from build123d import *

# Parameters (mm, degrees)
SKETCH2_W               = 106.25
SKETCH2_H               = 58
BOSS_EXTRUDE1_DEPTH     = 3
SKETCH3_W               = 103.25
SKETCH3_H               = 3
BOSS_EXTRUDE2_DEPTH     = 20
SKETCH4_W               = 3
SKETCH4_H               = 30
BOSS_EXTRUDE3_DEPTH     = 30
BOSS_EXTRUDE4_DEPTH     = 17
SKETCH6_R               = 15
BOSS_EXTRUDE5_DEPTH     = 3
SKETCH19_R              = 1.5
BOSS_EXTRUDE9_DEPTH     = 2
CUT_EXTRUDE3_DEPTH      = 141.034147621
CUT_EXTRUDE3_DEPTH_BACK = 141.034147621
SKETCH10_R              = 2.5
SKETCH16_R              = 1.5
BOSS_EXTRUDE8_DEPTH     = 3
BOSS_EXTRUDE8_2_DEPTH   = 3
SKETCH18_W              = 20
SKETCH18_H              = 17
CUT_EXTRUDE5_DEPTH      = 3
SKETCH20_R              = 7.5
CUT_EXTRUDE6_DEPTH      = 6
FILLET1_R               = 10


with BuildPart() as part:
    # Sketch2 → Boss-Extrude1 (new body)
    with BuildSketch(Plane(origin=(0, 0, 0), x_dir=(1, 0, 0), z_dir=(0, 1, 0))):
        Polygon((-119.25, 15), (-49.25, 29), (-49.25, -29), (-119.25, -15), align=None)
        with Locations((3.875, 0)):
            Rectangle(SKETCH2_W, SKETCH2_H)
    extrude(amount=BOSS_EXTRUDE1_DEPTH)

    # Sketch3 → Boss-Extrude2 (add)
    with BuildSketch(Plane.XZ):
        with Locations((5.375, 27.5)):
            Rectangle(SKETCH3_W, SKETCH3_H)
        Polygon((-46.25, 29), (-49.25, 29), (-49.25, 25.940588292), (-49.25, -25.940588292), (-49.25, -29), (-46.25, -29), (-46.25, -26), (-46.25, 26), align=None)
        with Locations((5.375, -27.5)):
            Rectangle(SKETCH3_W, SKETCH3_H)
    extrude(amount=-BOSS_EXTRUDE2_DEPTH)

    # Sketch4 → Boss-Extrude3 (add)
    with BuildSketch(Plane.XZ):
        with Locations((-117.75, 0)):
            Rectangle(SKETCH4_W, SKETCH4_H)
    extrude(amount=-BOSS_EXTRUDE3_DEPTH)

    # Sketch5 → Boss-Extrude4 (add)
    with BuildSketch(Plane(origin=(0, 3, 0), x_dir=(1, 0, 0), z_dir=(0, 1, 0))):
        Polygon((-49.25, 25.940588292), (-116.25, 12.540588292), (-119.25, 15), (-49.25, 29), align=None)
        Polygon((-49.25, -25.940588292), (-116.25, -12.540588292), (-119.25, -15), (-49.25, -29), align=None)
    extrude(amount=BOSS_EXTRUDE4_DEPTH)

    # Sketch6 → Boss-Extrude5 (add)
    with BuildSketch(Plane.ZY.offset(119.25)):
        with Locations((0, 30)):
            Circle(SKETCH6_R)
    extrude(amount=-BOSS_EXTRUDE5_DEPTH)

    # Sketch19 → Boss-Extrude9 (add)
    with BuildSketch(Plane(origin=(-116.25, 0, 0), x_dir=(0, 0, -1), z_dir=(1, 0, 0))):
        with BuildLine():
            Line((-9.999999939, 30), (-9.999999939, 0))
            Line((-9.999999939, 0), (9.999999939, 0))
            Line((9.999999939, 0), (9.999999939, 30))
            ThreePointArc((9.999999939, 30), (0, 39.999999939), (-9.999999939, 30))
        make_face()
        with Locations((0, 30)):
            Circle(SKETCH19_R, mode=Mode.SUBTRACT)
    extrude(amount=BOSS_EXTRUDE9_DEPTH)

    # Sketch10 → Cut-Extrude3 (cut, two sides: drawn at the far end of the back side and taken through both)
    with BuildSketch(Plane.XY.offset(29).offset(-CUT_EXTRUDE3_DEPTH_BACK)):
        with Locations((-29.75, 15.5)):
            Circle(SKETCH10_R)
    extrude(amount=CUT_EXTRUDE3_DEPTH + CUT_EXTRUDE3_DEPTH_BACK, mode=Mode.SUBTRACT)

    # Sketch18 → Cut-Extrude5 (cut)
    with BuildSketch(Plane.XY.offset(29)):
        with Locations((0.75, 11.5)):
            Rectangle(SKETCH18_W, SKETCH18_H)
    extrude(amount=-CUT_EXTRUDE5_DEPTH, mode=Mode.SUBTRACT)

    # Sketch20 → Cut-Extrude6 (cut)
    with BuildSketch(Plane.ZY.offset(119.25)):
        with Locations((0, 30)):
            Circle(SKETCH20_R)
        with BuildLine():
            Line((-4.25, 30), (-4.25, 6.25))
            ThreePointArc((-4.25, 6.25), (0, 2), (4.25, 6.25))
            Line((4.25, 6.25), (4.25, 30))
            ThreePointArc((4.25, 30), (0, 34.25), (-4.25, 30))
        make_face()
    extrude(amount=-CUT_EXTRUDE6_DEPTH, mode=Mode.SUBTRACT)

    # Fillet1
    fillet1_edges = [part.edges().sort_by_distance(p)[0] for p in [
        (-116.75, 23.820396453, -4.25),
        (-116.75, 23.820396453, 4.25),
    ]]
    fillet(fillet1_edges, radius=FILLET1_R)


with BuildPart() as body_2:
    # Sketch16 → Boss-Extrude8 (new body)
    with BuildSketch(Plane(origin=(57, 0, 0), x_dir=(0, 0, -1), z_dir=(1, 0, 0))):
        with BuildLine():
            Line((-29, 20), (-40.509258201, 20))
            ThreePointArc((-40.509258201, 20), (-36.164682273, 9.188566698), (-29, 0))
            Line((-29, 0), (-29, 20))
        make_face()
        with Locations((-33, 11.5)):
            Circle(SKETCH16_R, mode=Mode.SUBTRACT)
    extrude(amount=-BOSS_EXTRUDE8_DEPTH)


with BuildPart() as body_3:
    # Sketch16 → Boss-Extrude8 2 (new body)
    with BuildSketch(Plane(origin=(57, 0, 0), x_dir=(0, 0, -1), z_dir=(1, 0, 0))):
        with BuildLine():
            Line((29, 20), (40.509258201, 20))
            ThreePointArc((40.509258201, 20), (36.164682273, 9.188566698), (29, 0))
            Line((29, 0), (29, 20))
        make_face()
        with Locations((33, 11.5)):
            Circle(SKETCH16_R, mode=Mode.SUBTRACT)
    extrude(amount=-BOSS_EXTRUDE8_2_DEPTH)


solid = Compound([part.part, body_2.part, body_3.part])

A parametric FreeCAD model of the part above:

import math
import FreeCAD as App
import Part
import Sketcher

V = App.Vector


def edges_at(feature, points):
    """Names of the edges that pass closest to the given points."""
    edges = feature.Shape.Edges
    near = lambda p: min(range(len(edges)), key=lambda i: edges[i].distToShape(Part.Vertex(*p))[0])
    return sorted({f"Edge{near(p) + 1}" for p in points})

doc = App.newDocument("Part")
body = doc.addObject("PartDesign::Body", "Body")

# Sketch on XZ plane
sketch1 = body.newObject("Sketcher::SketchObject", "Sketch")
sketch1.AttachmentSupport = (doc.getObject("XZ_Plane"), [""])
sketch1.MapMode = "FlatFace"
sketch1.addGeometry([
    Part.LineSegment(V(-49.25, -29, 0), V(-119.25, -15, 0)),  # 0
    Part.LineSegment(V(-119.25, -15, 0), V(-119.25, 15, 0)),  # 1
    Part.LineSegment(V(-119.25, 15, 0), V(-49.25, 29, 0)),  # 2
    Part.LineSegment(V(-49.25, 29, 0), V(57, 29, 0)),  # 3
    Part.LineSegment(V(57, 29, 0), V(57, -29, 0)),  # 4
    Part.LineSegment(V(57, -29, 0), V(-49.25, -29, 0)),  # 5
], False)
sketch1.addConstraint([
    Sketcher.Constraint("Coincident", 0, 2, 1, 1),
    Sketcher.Constraint("Coincident", 1, 2, 2, 1),
    Sketcher.Constraint("Coincident", 2, 2, 3, 1),
    Sketcher.Constraint("Coincident", 3, 2, 4, 1),
    Sketcher.Constraint("Coincident", 4, 2, 5, 1),
    Sketcher.Constraint("Coincident", 5, 2, 0, 1),
    Sketcher.Constraint("Vertical", 1),
    Sketcher.Constraint("Horizontal", 3),
    Sketcher.Constraint("Vertical", 4),
    Sketcher.Constraint("Horizontal", 5),
    Sketcher.Constraint("Symmetric", 2, 2, 5, 2, -1),
    Sketcher.Constraint("Equal", 0, 2),
    Sketcher.Constraint("DistanceY", 1, 1, 1, 2, 30.0),
    Sketcher.Constraint("DistanceY", 4, 2, 4, 1, 58.0),
    Sketcher.Constraint("DistanceX", -1, 1, 3, 2, 57.0),
    Sketcher.Constraint("DistanceX", 1, 2, 2, 2, 70.0),
    Sketcher.Constraint("DistanceX", 3, 1, 3, 2, 106.25),
])
pad1 = body.newObject("PartDesign::Pad", "Pad")
pad1.Profile = sketch1
pad1.Length = 3
pad1.Reversed = True

# Sketch on XZ plane
sketch2 = body.newObject("Sketcher::SketchObject", "Sketch001")
sketch2.AttachmentSupport = (doc.getObject("XZ_Plane"), [""])
sketch2.MapMode = "FlatFace"
sketch2.addGeometry([
    Part.LineSegment(V(-46.25, 26, 0), V(57, 26, 0)),  # 0
    Part.LineSegment(V(57, 26, 0), V(57, 29, 0)),  # 1
    Part.LineSegment(V(57, 29, 0), V(-49.25, 29, 0)),  # 2
    Part.LineSegment(V(-49.25, 29, 0), V(-49.25, -29, 0)),  # 3
    Part.LineSegment(V(-49.25, -29, 0), V(57, -29, 0)),  # 4
    Part.LineSegment(V(57, -29, 0), V(57, -26, 0)),  # 5
    Part.LineSegment(V(57, -26, 0), V(-46.25, -26, 0)),  # 6
    Part.LineSegment(V(-46.25, -26, 0), V(-46.25, 26, 0)),  # 7
], False)
sketch2.addConstraint([
    Sketcher.Constraint("Coincident", 0, 2, 1, 1),
    Sketcher.Constraint("Coincident", 1, 2, 2, 1),
    Sketcher.Constraint("Coincident", 2, 2, 3, 1),
    Sketcher.Constraint("Coincident", 3, 2, 4, 1),
    Sketcher.Constraint("Coincident", 4, 2, 5, 1),
    Sketcher.Constraint("Coincident", 5, 2, 6, 1),
    Sketcher.Constraint("Coincident", 6, 2, 7, 1),
    Sketcher.Constraint("Coincident", 7, 2, 0, 1),
    Sketcher.Constraint("Horizontal", 0),
    Sketcher.Constraint("Vertical", 1),
    Sketcher.Constraint("Horizontal", 2),
    Sketcher.Constraint("Vertical", 3),
    Sketcher.Constraint("Horizontal", 4),
    Sketcher.Constraint("Vertical", 5),
    Sketcher.Constraint("Horizontal", 6),
    Sketcher.Constraint("Vertical", 7),
    Sketcher.Constraint("Symmetric", 1, 2, 4, 2, -1),
    Sketcher.Constraint("Equal", 1, 5),
    Sketcher.Constraint("DistanceY", 1, 1, 1, 2, 3.0),
    Sketcher.Constraint("DistanceY", 3, 2, 3, 1, 58.0),
    Sketcher.Constraint("DistanceX", -1, 1, 0, 2, 57.0),
    Sketcher.Constraint("DistanceX", 3, 2, 6, 2, 3.0),
    Sketcher.Constraint("DistanceX", 0, 1, 0, 2, 103.25),
])
pad2 = body.newObject("PartDesign::Pad", "Pad001")
pad2.Profile = sketch2
pad2.Length = 20
pad2.Reversed = True

# Sketch on XZ plane
sketch3 = body.newObject("Sketcher::SketchObject", "Sketch002")
sketch3.AttachmentSupport = (doc.getObject("XZ_Plane"), [""])
sketch3.MapMode = "FlatFace"
sketch3.addGeometry([
    Part.LineSegment(V(-119.25, 15, 0), V(-119.25, -15, 0)),
    Part.LineSegment(V(-119.25, -15, 0), V(-116.25, -15, 0)),
    Part.LineSegment(V(-116.25, -15, 0), V(-116.25, 15, 0)),
    Part.LineSegment(V(-116.25, 15, 0), V(-119.25, 15, 0)),
], False)
sketch3.addConstraint([
    Sketcher.Constraint("Coincident", 0, 2, 1, 1),
    Sketcher.Constraint("Coincident", 1, 2, 2, 1),
    Sketcher.Constraint("Coincident", 2, 2, 3, 1),
    Sketcher.Constraint("Coincident", 3, 2, 0, 1),
    Sketcher.Constraint("Vertical", 0),
    Sketcher.Constraint("Horizontal", 1),
    Sketcher.Constraint("Vertical", 2),
    Sketcher.Constraint("Horizontal", 3),
    Sketcher.Constraint("DistanceX", 1, 1, 1, 2, 3.0),
    Sketcher.Constraint("DistanceY", 0, 2, 0, 1, 30.0),
    Sketcher.Constraint("DistanceY", 0, 2, -1, 1, 15.0),
    Sketcher.Constraint("DistanceX", 0, 2, -1, 1, 119.25),
])
pad3 = body.newObject("PartDesign::Pad", "Pad002")
pad3.Profile = sketch3
pad3.Length = 30
pad3.Reversed = True

# Sketch on XZ plane
sketch4 = body.newObject("Sketcher::SketchObject", "Sketch003")
sketch4.AttachmentSupport = (doc.getObject("XZ_Plane"), [""])
sketch4.MapMode = "FlatFace"
sketch4.AttachmentOffset = App.Placement(V(0, 0, -3), App.Rotation())
sketch4.addGeometry([
    Part.LineSegment(V(-116.25, -12.540588, 0), V(-49.25, -25.940588, 0)),  # 0
    Part.LineSegment(V(-49.25, -25.940588, 0), V(-49.25, -29, 0)),  # 1
    Part.LineSegment(V(-49.25, -29, 0), V(-119.25, -15, 0)),  # 2
    Part.LineSegment(V(-119.25, -15, 0), V(-116.25, -12.540588, 0)),  # 3
    Part.LineSegment(V(-49.25, 25.940588, 0), V(-116.25, 12.540588, 0)),  # 4
    Part.LineSegment(V(-116.25, 12.540588, 0), V(-119.25, 15, 0)),  # 5
    Part.LineSegment(V(-119.25, 15, 0), V(-49.25, 29, 0)),  # 6
    Part.LineSegment(V(-49.25, 29, 0), V(-49.25, 25.940588, 0)),  # 7
], False)
sketch4.addConstraint([
    Sketcher.Constraint("Coincident", 0, 2, 1, 1),
    Sketcher.Constraint("Coincident", 1, 2, 2, 1),
    Sketcher.Constraint("Coincident", 2, 2, 3, 1),
    Sketcher.Constraint("Coincident", 3, 2, 0, 1),
    Sketcher.Constraint("Coincident", 4, 2, 5, 1),
    Sketcher.Constraint("Coincident", 5, 2, 6, 1),
    Sketcher.Constraint("Coincident", 6, 2, 7, 1),
    Sketcher.Constraint("Coincident", 7, 2, 4, 1),
    Sketcher.Constraint("Vertical", 1),
    Sketcher.Constraint("Vertical", 7),
    Sketcher.Constraint("Symmetric", 3, 2, 4, 2, -1),
    Sketcher.Constraint("Symmetric", 2, 2, 5, 2, -1),
    Sketcher.Constraint("Symmetric", 1, 2, 6, 2, -1),
    Sketcher.Constraint("Parallel", 0, 2),
    Sketcher.Constraint("Parallel", 4, 6),
    Sketcher.Constraint("DistanceY", 1, 2, -1, 1, 29.0),
    Sketcher.Constraint("DistanceY", 2, 2, -1, 1, 15.0),
    Sketcher.Constraint("DistanceX", 2, 2, 0, 2, 70.0),
    Sketcher.Constraint("DistanceX", 2, 2, 3, 2, 3.0),
    Sketcher.Constraint("DistanceX", 0, 2, -1, 1, 49.25),
    Sketcher.Constraint("DistanceY", 1, 2, 1, 1, 3.059412),
])
pad4 = body.newObject("PartDesign::Pad", "Pad003")
pad4.Profile = sketch4
pad4.Length = 17
pad4.Reversed = True

# Sketch on YZ plane
sketch5 = body.newObject("Sketcher::SketchObject", "Sketch004")
sketch5.AttachmentSupport = (doc.getObject("YZ_Plane"), [""])
sketch5.MapMode = "FlatFace"
sketch5.AttachmentOffset = App.Placement(V(0, 0, -119.25), App.Rotation())
sketch5.addGeometry(Part.Circle(V(30, 0, 0), V(0, 0, 1), 15), False)
sketch5.addConstraint([
    Sketcher.Constraint("PointOnObject", 0, 3, -1),
    Sketcher.Constraint("Diameter", 0, 30.0),
    Sketcher.Constraint("DistanceX", -1, 1, 0, 3, 30.0),
])
pad5 = body.newObject("PartDesign::Pad", "Pad004")
pad5.Profile = sketch5
pad5.Length = 3

# Sketch on YZ plane
sketch6 = body.newObject("Sketcher::SketchObject", "Sketch005")
sketch6.AttachmentSupport = (doc.getObject("YZ_Plane"), [""])
sketch6.MapMode = "FlatFace"
sketch6.AttachmentOffset = App.Placement(V(0, 0, -116.25), App.Rotation())
sketch6.addGeometry([
    Part.LineSegment(V(30, 10, 0), V(0, 10, 0)),  # 0
    Part.LineSegment(V(0, 10, 0), V(0, -10, 0)),  # 1
    Part.LineSegment(V(0, -10, 0), V(30, -10, 0)),  # 2
    Part.ArcOfCircle(Part.Circle(V(30, 0, 0), V(0, 0, 1), 10), math.radians(-90), math.radians(90)),  # 3
    Part.Circle(V(30, 0, 0), V(0, 0, 1), 1.5),  # 4
], False)
sketch6.addConstraint([
    Sketcher.Constraint("Coincident", 0, 2, 1, 1),
    Sketcher.Constraint("Coincident", 1, 2, 2, 1),
    Sketcher.Constraint("Tangent", 2, 2, 3, 1),
    Sketcher.Constraint("Tangent", 3, 2, 0, 1),
    Sketcher.Constraint("Horizontal", 0),
    Sketcher.Constraint("Vertical", 1),
    Sketcher.Constraint("Horizontal", 2),
    Sketcher.Constraint("Coincident", 4, 3, 3, 3),
    Sketcher.Constraint("Symmetric", 0, 2, 1, 2, -1, 1),
    Sketcher.Constraint("Diameter", 4, 3.0),
    Sketcher.Constraint("Radius", 3, 10.0),
    Sketcher.Constraint("DistanceX", 0, 2, 0, 1, 30.0),
])
pad6 = body.newObject("PartDesign::Pad", "Pad005")
pad6.Profile = sketch6
pad6.Length = 2

# Sketch on XY plane
sketch7 = body.newObject("Sketcher::SketchObject", "Sketch006")
sketch7.AttachmentSupport = (doc.getObject("XY_Plane"), [""])
sketch7.MapMode = "FlatFace"
sketch7.AttachmentOffset = App.Placement(V(0, 0, 29), App.Rotation())
sketch7.addGeometry(Part.Circle(V(-29.75, 15.5, 0), V(0, 0, 1), 2.5), False)
sketch7.addConstraint([
    Sketcher.Constraint("Diameter", 0, 5.0),
    Sketcher.Constraint("DistanceY", -1, 1, 0, 3, 15.5),
    Sketcher.Constraint("DistanceX", 0, 3, -1, 1, 29.75),
])
pocket1 = body.newObject("PartDesign::Pocket", "Pocket")
pocket1.Profile = sketch7
pocket1.Type = "ThroughAll"
pocket1.Midplane = True

# Sketch on XY plane
sketch8 = body.newObject("Sketcher::SketchObject", "Sketch007")
sketch8.AttachmentSupport = (doc.getObject("XY_Plane"), [""])
sketch8.MapMode = "FlatFace"
sketch8.AttachmentOffset = App.Placement(V(0, 0, 29), App.Rotation())
sketch8.addGeometry([
    Part.LineSegment(V(-9.25, 20, 0), V(-9.25, 3, 0)),
    Part.LineSegment(V(-9.25, 3, 0), V(10.75, 3, 0)),
    Part.LineSegment(V(10.75, 3, 0), V(10.75, 20, 0)),
    Part.LineSegment(V(10.75, 20, 0), V(-9.25, 20, 0)),
], False)
sketch8.addConstraint([
    Sketcher.Constraint("Coincident", 0, 2, 1, 1),
    Sketcher.Constraint("Coincident", 1, 2, 2, 1),
    Sketcher.Constraint("Coincident", 2, 2, 3, 1),
    Sketcher.Constraint("Coincident", 3, 2, 0, 1),
    Sketcher.Constraint("Vertical", 0),
    Sketcher.Constraint("Horizontal", 1),
    Sketcher.Constraint("Vertical", 2),
    Sketcher.Constraint("Horizontal", 3),
    Sketcher.Constraint("DistanceX", 1, 1, 1, 2, 20.0),
    Sketcher.Constraint("DistanceY", 0, 2, 0, 1, 17.0),
    Sketcher.Constraint("DistanceY", -1, 1, 0, 2, 3.0),
    Sketcher.Constraint("DistanceX", 0, 2, -1, 1, 9.25),
])
pocket2 = body.newObject("PartDesign::Pocket", "Pocket001")
pocket2.Profile = sketch8
pocket2.Length = 3

# Sketch on YZ plane
sketch9 = body.newObject("Sketcher::SketchObject", "Sketch008")
sketch9.AttachmentSupport = (doc.getObject("YZ_Plane"), [""])
sketch9.MapMode = "FlatFace"
sketch9.AttachmentOffset = App.Placement(V(0, 0, -119.25), App.Rotation())
sketch9.addGeometry([
    Part.ArcOfCircle(Part.Circle(V(30, 0, 0), V(0, 0, 1), 7.5), math.radians(-145.481892), math.radians(145.481892)),
    Part.LineSegment(V(23.820396, -4.25, 0), V(6.25, -4.25, 0)),
    Part.ArcOfCircle(Part.Circle(V(6.25, 0, 0), V(0, 0, 1), 4.25), math.radians(90), math.radians(270)),
    Part.LineSegment(V(6.25, 4.25, 0), V(23.820396, 4.25, 0)),
], False)
sketch9.addConstraint([
    Sketcher.Constraint("Coincident", 0, 1, 1, 1),
    Sketcher.Constraint("Tangent", 1, 2, 2, 2),
    Sketcher.Constraint("Tangent", 2, 1, 3, 1),
    Sketcher.Constraint("Coincident", 3, 2, 0, 2),
    Sketcher.Constraint("Horizontal", 1),
    Sketcher.Constraint("Horizontal", 3),
    Sketcher.Constraint("Symmetric", 0, 1, 3, 2, -1),
    Sketcher.Constraint("Radius", 0, 7.5),
    Sketcher.Constraint("Radius", 2, 4.25),
    Sketcher.Constraint("DistanceX", -1, 1, 0, 3, 30.0),
    Sketcher.Constraint("DistanceX", -1, 1, 2, 3, 6.25),
])
pocket3 = body.newObject("PartDesign::Pocket", "Pocket002")
pocket3.Profile = sketch9
pocket3.Length = 6
pocket3.Reversed = True
doc.recompute()

fillet = body.newObject("PartDesign::Fillet", "Fillet")
fillet.Base = (pocket3, edges_at(pocket3, [(-116.75, 23.82, -4.25), (-116.75, 23.82, 4.25)]))
fillet.Radius = 10
body2 = doc.addObject("PartDesign::Body", "Body001")

# Sketch on YZ plane
sketch10 = body2.newObject("Sketcher::SketchObject", "Sketch009")
sketch10.AttachmentSupport = (doc.getObject("YZ_Plane001"), [""])
sketch10.MapMode = "FlatFace"
sketch10.AttachmentOffset = App.Placement(V(0, 0, 57), App.Rotation())
sketch10.addGeometry([
    Part.LineSegment(V(20, 29, 0), V(20, 40.509258, 0)),
    Part.ArcOfCircle(Part.Circle(V(30, 0, 0), V(0, 0, 1), 41.725292), math.radians(103.866639), math.radians(135.971022)),
    Part.LineSegment(V(0, 29, 0), V(20, 29, 0)),
    Part.Circle(V(11.5, 33, 0), V(0, 0, 1), 1.5),
], False)
sketch10.addConstraint([
    Sketcher.Constraint("Coincident", 0, 2, 1, 1),
    Sketcher.Constraint("Coincident", 1, 2, 2, 1),
    Sketcher.Constraint("Coincident", 2, 2, 0, 1),
    Sketcher.Constraint("Vertical", 0),
    Sketcher.Constraint("Horizontal", 2),
    Sketcher.Constraint("PointOnObject", 1, 3, -1),
    Sketcher.Constraint("PointOnObject", 1, 2, -2),
    Sketcher.Constraint("Diameter", 3, 3.0),
    Sketcher.Constraint("DistanceX", 2, 1, 2, 2, 20.0),
    Sketcher.Constraint("DistanceX", -1, 1, 1, 3, 30.0),
    Sketcher.Constraint("DistanceY", -1, 1, 3, 3, 33.0),
    Sketcher.Constraint("DistanceY", -1, 1, 1, 2, 29.0),
    Sketcher.Constraint("DistanceX", -1, 1, 3, 3, 11.5),
])
pad7 = body2.newObject("PartDesign::Pad", "Pad006")
pad7.Profile = sketch10
pad7.Length = 3
pad7.Reversed = True
body3 = doc.addObject("PartDesign::Body", "Body002")

# Sketch on YZ plane
sketch11 = body3.newObject("Sketcher::SketchObject", "Sketch010")
sketch11.AttachmentSupport = (doc.getObject("YZ_Plane002"), [""])
sketch11.MapMode = "FlatFace"
sketch11.AttachmentOffset = App.Placement(V(0, 0, 57), App.Rotation())
sketch11.addGeometry([
    Part.LineSegment(V(20, -40.509258, 0), V(20, -29, 0)),
    Part.LineSegment(V(20, -29, 0), V(0, -29, 0)),
    Part.ArcOfCircle(Part.Circle(V(30, 0, 0), V(0, 0, 1), 41.725292), math.radians(-135.971022), math.radians(-103.866639)),
    Part.Circle(V(11.5, -33, 0), V(0, 0, 1), 1.5),
], False)
sketch11.addConstraint([
    Sketcher.Constraint("Coincident", 0, 2, 1, 1),
    Sketcher.Constraint("Coincident", 1, 2, 2, 1),
    Sketcher.Constraint("Coincident", 2, 2, 0, 1),
    Sketcher.Constraint("Vertical", 0),
    Sketcher.Constraint("Horizontal", 1),
    Sketcher.Constraint("PointOnObject", 2, 3, -1),
    Sketcher.Constraint("PointOnObject", 1, 2, -2),
    Sketcher.Constraint("Diameter", 3, 3.0),
    Sketcher.Constraint("DistanceX", 1, 2, 1, 1, 20.0),
    Sketcher.Constraint("DistanceX", -1, 1, 2, 3, 30.0),
    Sketcher.Constraint("DistanceY", 3, 3, -1, 1, 33.0),
    Sketcher.Constraint("DistanceY", 0, 2, -1, 1, 29.0),
    Sketcher.Constraint("DistanceX", -1, 1, 3, 3, 11.5),
])
pad8 = body3.newObject("PartDesign::Pad", "Pad007")
pad8.Profile = sketch11
pad8.Length = 3
pad8.Reversed = True

doc.recompute()
